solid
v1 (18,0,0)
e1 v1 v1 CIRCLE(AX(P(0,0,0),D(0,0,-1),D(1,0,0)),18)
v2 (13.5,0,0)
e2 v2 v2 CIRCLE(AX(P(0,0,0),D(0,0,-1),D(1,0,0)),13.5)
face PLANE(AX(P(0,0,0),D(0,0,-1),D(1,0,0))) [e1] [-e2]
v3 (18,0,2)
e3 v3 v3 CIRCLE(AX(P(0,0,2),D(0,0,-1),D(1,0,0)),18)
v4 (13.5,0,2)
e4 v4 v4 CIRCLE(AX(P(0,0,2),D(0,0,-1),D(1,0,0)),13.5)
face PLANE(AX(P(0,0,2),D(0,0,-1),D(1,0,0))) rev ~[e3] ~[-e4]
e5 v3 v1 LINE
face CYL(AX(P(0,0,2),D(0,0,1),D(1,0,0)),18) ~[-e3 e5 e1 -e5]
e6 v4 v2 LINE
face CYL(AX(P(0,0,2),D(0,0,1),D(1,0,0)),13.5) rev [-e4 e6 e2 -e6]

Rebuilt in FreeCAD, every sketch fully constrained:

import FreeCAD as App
import Part
import Sketcher

V = App.Vector

doc = App.newDocument("Part")
body = doc.addObject("PartDesign::Body", "Body")

sketch1 = body.newObject("Sketcher::SketchObject", "Sketch")
sketch1.AttachmentSupport = (doc.getObject("XY_Plane"), [""])
sketch1.MapMode = "FlatFace"
sketch1.addGeometry(Part.Circle(V(0, 0, 0), V(0, 0, 1), 14), False)
sketch1.addConstraint([
    Sketcher.Constraint("Coincident", 0, 3, -1, 1),
    Sketcher.Constraint("Diameter", 0, 27.0),
])
pad1 = body.newObject("PartDesign::Pad", "Pad")
pad1.Profile = sketch1
pad1.Length = 2
body2 = doc.addObject("PartDesign::Body", "Body001")

sketch2 = body2.newObject("Sketcher::SketchObject", "Sketch001")
sketch2.AttachmentSupport = (doc.getObject("XY_Plane001"), [""])
sketch2.MapMode = "FlatFace"
sketch2.addGeometry(Part.Circle(V(0, 0, 0), V(0, 0, 1), 18), False)
sketch2.addConstraint([
    Sketcher.Constraint("Coincident", 0, 3, -1, 1),
    Sketcher.Constraint("Diameter", 0, 36.0),
])
pad2 = body2.newObject("PartDesign::Pad", "Pad001")
pad2.Profile = sketch2
pad2.Length = 2
doc.recompute()

boolean = body2.newObject("PartDesign::Boolean", "Boolean")
boolean.Type = "Cut"
boolean.addObjects([body])
body3 = doc.addObject("PartDesign::Body", "Body002")
doc.recompute()

body2.Placement = App.Placement(V(0, 0, 2), App.Rotation(V(1, 0, 0), 180))
boolean2 = body3.newObject("PartDesign::Boolean", "Boolean001")
boolean2.Type = "Fuse"
boolean2.addObjects([body2])

doc.recompute()
